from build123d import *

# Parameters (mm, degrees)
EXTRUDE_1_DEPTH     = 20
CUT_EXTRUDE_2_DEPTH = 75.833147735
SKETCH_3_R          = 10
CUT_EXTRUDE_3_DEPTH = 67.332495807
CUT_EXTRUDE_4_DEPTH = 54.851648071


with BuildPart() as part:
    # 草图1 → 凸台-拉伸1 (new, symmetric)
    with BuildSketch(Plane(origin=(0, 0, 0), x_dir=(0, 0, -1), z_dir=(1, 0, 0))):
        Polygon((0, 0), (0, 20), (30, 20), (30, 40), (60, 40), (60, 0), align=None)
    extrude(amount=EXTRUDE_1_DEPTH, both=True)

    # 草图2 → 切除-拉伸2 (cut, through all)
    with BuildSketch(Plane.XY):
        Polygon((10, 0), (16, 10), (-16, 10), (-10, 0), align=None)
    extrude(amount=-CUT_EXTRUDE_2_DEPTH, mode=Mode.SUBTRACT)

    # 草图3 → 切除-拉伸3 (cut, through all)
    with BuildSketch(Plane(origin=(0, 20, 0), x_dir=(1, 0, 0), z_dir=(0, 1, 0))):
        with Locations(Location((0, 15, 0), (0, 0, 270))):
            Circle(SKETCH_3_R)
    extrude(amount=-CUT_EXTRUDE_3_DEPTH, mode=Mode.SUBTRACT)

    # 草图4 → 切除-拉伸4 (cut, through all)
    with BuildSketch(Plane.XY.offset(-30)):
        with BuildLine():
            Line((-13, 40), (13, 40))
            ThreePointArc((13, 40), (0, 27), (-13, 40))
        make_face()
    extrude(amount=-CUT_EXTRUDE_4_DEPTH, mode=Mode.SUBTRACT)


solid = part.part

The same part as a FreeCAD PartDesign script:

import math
import FreeCAD as App
import Part
import Sketcher
from FreeCAD import Vector
Q = App.Units.Quantity

doc = App.newDocument("Part")
body = doc.addObject("PartDesign::Body", "Body")

# Sketch on YZ plane
sketch1 = body.newObject("Sketcher::SketchObject", "Sketch")
sketch1.AttachmentSupport = (doc.getObject("YZ_Plane"), [""])
sketch1.MapMode = "FlatFace"
sketch1.addGeometry(Part.LineSegment(Vector(20, 0, 0), Vector(0, 0, 0)), False)
sketch1.addGeometry(Part.LineSegment(Vector(0, 0, 0), Vector(0, -60, 0)), False)
sketch1.addGeometry(Part.LineSegment(Vector(0, -60, 0), Vector(40, -60, 0)), False)
sketch1.addGeometry(Part.LineSegment(Vector(40, -60, 0), Vector(40, -30, 0)), False)
sketch1.addGeometry(Part.LineSegment(Vector(40, -30, 0), Vector(20, -30, 0)), False)
sketch1.addGeometry(Part.LineSegment(Vector(20, -30, 0), Vector(20, 0, 0)), False)
sketch1.addConstraint(Sketcher.Constraint("Coincident", 0, 2, 1, 1))
sketch1.addConstraint(Sketcher.Constraint("Coincident", 1, 2, 2, 1))
sketch1.addConstraint(Sketcher.Constraint("Coincident", 2, 2, 3, 1))
sketch1.addConstraint(Sketcher.Constraint("Coincident", 3, 2, 4, 1))
sketch1.addConstraint(Sketcher.Constraint("Coincident", 4, 2, 5, 1))
sketch1.addConstraint(Sketcher.Constraint("Coincident", 5, 2, 0, 1))
sketch1.addConstraint(Sketcher.Constraint("Horizontal", 0))
sketch1.addConstraint(Sketcher.Constraint("Vertical", 1))
sketch1.addConstraint(Sketcher.Constraint("Horizontal", 2))
sketch1.addConstraint(Sketcher.Constraint("Vertical", 3))
sketch1.addConstraint(Sketcher.Constraint("Horizontal", 4))
sketch1.addConstraint(Sketcher.Constraint("Vertical", 5))
sketch1.addConstraint(Sketcher.Constraint("Coincident", 0, 2, -1, 1))
sketch1.addConstraint(Sketcher.Constraint("Equal", 0, 4))
sketch1.addConstraint(Sketcher.Constraint("Equal", 3, 5))
sketch1.addConstraint(Sketcher.Constraint("DistanceX", 0, 2, 0, 1, Q("20 mm")))
sketch1.addConstraint(Sketcher.Constraint("DistanceY", 1, 2, 1, 1, Q("60 mm")))
pad1 = body.newObject("PartDesign::Pad", "Pad")
pad1.Profile = sketch1
pad1.Length = 40
pad1.Midplane = True

# Sketch on XY plane
sketch2 = body.newObject("Sketcher::SketchObject", "Sketch001")
sketch2.AttachmentSupport = (doc.getObject("XY_Plane"), [""])
sketch2.MapMode = "FlatFace"
sketch2.addGeometry(Part.LineSegment(Vector(10, 0, 0), Vector(16, 10, 0)), False)
sketch2.addGeometry(Part.LineSegment(Vector(16, 10, 0), Vector(-16, 10, 0)), False)
sketch2.addGeometry(Part.LineSegment(Vector(-16, 10, 0), Vector(-10, 0, 0)), False)
sketch2.addGeometry(Part.LineSegment(Vector(-10, 0, 0), Vector(10, 0, 0)), False)
sketch2.addConstraint(Sketcher.Constraint("Coincident", 0, 2, 1, 1))
sketch2.addConstraint(Sketcher.Constraint("Coincident", 1, 2, 2, 1))
sketch2.addConstraint(Sketcher.Constraint("Coincident", 2, 2, 3, 1))
sketch2.addConstraint(Sketcher.Constraint("Coincident", 3, 2, 0, 1))
sketch2.addConstraint(Sketcher.Constraint("Horizontal", 1))
sketch2.addConstraint(Sketcher.Constraint("Horizontal", 3))
sketch2.addConstraint(Sketcher.Constraint("Symmetric", 2, 2, 3, 2, -1, 1))
sketch2.addConstraint(Sketcher.Constraint("Equal", 0, 2))
sketch2.addConstraint(Sketcher.Constraint("DistanceX", 1, 2, 1, 1, Q("32 mm")))
sketch2.addConstraint(Sketcher.Constraint("DistanceX", 3, 1, 3, 2, Q("20 mm")))
sketch2.addConstraint(Sketcher.Constraint("DistanceY", -1, 1, 0, 2, Q("10 mm")))
pocket1 = body.newObject("PartDesign::Pocket", "Pocket")
pocket1.Profile = sketch2
pocket1.Type = "ThroughAll"

# Sketch on XZ plane
sketch3 = body.newObject("Sketcher::SketchObject", "Sketch002")
sketch3.AttachmentSupport = (doc.getObject("XZ_Plane"), [""])
sketch3.MapMode = "FlatFace"
sketch3.AttachmentOffset = App.Placement(Vector(0, 0, -20), App.Rotation())
sketch3.addGeometry(Part.Circle(Vector(0, -15, 0), Vector(0, 0, 1), 10), False)
sketch3.addConstraint(Sketcher.Constraint("PointOnObject", 0, 3, -2))
sketch3.addConstraint(Sketcher.Constraint("Diameter", 0, Q("20 mm")))
sketch3.addConstraint(Sketcher.Constraint("DistanceY", 0, 3, -1, 1, Q("15 mm")))
pocket2 = body.newObject("PartDesign::Pocket", "Pocket001")
pocket2.Profile = sketch3
pocket2.Type = "ThroughAll"
pocket2.Reversed = True

# Sketch on XY plane
sketch4 = body.newObject("Sketcher::SketchObject", "Sketch003")
sketch4.AttachmentSupport = (doc.getObject("XY_Plane"), [""])
sketch4.MapMode = "FlatFace"
sketch4.AttachmentOffset = App.Placement(Vector(0, 0, -30), App.Rotation())
sketch4.addGeometry(Part.LineSegment(Vector(13, 40, 0), Vector(-13, 40, 0)), False)
sketch4.addGeometry(Part.ArcOfCircle(Part.Circle(Vector(0, 40, 0), Vector(0, 0, 1), 13), math.radians(180), math.radians(360)), False)
sketch4.addConstraint(Sketcher.Constraint("Coincident", 0, 1, 1, 2))
sketch4.addConstraint(Sketcher.Constraint("Coincident", 1, 1, 0, 2))
sketch4.addConstraint(Sketcher.Constraint("Horizontal", 0))
sketch4.addConstraint(Sketcher.Constraint("PointOnObject", 1, 3, -2))
sketch4.addConstraint(Sketcher.Constraint("Horizontal", 1, 3, 0, 1))
sketch4.addConstraint(Sketcher.Constraint("Radius", 1, Q("13 mm")))
sketch4.addConstraint(Sketcher.Constraint("DistanceY", -1, 1, 1, 3, Q("40 mm")))
pocket3 = body.newObject("PartDesign::Pocket", "Pocket002")
pocket3.Profile = sketch4
pocket3.Type = "ThroughAll"

doc.recompute()
